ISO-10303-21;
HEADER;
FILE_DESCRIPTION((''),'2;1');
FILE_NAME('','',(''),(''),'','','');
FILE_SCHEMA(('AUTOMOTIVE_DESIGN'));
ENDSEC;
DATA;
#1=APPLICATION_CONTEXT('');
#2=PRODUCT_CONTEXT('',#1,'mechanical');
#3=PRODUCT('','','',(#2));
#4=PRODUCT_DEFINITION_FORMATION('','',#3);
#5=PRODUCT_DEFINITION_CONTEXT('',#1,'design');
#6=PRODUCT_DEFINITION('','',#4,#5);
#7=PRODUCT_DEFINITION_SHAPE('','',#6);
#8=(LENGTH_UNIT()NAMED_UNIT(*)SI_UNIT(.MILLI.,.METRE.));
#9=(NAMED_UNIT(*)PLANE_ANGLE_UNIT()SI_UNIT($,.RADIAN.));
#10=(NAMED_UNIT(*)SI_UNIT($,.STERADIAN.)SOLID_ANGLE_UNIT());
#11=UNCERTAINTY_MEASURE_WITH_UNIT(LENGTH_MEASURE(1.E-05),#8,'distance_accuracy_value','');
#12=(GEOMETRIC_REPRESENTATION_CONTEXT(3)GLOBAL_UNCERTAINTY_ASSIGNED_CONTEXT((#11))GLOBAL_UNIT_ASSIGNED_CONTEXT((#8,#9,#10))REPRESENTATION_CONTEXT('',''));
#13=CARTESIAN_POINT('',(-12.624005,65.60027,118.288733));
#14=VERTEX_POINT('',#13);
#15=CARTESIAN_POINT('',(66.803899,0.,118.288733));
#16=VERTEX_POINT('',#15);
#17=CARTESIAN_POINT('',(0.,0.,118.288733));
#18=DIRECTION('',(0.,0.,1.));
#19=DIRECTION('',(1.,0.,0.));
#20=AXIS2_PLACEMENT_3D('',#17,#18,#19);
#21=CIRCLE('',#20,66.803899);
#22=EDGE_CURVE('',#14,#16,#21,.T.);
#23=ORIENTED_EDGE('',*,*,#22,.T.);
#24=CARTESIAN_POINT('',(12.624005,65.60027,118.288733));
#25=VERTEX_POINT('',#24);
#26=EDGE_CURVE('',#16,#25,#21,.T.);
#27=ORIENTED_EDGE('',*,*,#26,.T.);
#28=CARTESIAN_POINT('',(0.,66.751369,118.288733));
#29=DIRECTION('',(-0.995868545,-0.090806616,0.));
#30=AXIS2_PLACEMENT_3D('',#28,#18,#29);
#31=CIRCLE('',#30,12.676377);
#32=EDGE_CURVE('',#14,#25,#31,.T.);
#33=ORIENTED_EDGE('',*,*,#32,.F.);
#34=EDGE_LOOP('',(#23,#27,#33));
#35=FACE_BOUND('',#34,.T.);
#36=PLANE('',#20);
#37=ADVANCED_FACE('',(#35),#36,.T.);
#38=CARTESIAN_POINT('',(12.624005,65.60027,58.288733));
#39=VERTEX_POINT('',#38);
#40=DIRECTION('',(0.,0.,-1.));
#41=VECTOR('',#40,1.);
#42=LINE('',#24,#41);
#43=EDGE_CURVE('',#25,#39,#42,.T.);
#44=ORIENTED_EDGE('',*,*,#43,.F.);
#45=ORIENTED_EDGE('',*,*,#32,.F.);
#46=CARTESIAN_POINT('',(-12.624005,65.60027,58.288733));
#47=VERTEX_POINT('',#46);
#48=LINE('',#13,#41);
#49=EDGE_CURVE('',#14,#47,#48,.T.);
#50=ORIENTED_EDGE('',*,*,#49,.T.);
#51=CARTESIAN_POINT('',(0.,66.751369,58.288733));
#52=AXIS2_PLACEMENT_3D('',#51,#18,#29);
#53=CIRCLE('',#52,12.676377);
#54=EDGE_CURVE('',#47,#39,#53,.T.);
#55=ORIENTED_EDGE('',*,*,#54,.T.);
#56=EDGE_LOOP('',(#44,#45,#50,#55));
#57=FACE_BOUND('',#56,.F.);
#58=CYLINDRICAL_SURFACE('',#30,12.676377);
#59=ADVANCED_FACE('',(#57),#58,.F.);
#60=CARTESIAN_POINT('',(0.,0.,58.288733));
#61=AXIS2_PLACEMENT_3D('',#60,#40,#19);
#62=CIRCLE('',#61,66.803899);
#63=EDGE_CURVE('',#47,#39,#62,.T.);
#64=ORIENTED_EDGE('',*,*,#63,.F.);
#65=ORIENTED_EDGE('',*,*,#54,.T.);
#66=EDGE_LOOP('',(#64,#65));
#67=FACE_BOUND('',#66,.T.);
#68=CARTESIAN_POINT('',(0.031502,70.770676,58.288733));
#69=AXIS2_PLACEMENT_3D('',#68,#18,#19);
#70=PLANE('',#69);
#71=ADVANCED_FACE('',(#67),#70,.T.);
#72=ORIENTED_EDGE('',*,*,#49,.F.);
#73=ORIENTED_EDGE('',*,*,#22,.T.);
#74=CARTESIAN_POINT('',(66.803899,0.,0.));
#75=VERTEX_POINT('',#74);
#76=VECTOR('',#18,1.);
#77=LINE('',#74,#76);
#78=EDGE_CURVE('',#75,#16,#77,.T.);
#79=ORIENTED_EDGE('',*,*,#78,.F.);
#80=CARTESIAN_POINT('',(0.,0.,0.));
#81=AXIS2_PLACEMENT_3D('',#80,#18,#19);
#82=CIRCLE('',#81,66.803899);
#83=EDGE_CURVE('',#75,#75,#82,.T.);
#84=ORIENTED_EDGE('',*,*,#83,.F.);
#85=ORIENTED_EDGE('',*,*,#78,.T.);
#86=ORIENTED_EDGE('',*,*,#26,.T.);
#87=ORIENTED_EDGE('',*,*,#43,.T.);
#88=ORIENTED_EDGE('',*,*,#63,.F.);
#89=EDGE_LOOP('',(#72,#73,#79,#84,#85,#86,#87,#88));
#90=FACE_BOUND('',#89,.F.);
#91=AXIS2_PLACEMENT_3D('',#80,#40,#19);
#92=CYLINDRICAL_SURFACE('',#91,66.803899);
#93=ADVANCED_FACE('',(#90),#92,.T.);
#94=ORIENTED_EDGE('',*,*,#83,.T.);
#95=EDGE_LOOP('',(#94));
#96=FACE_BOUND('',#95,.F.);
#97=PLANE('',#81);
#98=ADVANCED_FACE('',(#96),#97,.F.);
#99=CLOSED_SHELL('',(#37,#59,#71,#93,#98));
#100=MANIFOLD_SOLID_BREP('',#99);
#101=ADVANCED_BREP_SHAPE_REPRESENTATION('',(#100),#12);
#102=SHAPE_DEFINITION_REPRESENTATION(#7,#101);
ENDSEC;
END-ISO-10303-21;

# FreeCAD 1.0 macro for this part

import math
import FreeCAD as App
import Part
import Sketcher
from FreeCAD import Vector
Q = App.Units.Quantity

doc = App.newDocument("Part")
body = doc.addObject("PartDesign::Body", "Body")

# Sketch on XY plane
sketch1 = body.newObject("Sketcher::SketchObject", "Sketch")
sketch1.AttachmentSupport = (doc.getObject("XY_Plane"), [""])
sketch1.MapMode = "FlatFace"
sketch1.addGeometry(Part.Circle(Vector(0, 0, 0), Vector(0, 0, 1), 67), False)
sketch1.addConstraint(Sketcher.Constraint("Coincident", 0, 3, -1, 1))
sketch1.addConstraint(Sketcher.Constraint("Diameter", 0, Q("133.607798 mm")))
pad1 = body.newObject("PartDesign::Pad", "Pad")
pad1.Profile = sketch1
pad1.Length = 118.288733

# Sketch on XY plane
sketch2 = body.newObject("Sketcher::SketchObject", "Sketch001")
sketch2.AttachmentSupport = (doc.getObject("XY_Plane"), [""])
sketch2.MapMode = "FlatFace"
sketch2.AttachmentOffset = App.Placement(Vector(0, 0, 118.288733), App.Rotation())
sketch2.addGeometry(Part.ArcOfCircle(Part.Circle(Vector(-0.000193, 66.751379, 0), Vector(0, 0, 1), 12.67657), math.radians(-5.209979), math.radians(-0.000049)), False)
sketch2.addGeometry(Part.ArcOfCircle(Part.Circle(Vector(0, 66.751368, 0), Vector(0, 0, 1), 12.676377), math.radians(0.000001), math.radians(185.210008)), False)
sketch2.addGeometry(Part.ArcOfCircle(Part.Circle(Vector(0, 66.751369, 0), Vector(0, 0, 1), 12.676377), math.radians(-174.789987), math.radians(-5.210013)), False)
sketch2.addConstraint(Sketcher.Constraint("Coincident", 0, 2, 1, 1))
sketch2.addConstraint(Sketcher.Constraint("Coincident", 1, 2, 2, 1))
sketch2.addConstraint(Sketcher.Constraint("Coincident", 2, 2, 0, 1))
sketch2.addConstraint(Sketcher.Constraint("Coincident", 2, 3, 1, 3))
sketch2.addConstraint(Sketcher.Constraint("PointOnObject", 1, 3, -2))
sketch2.addConstraint(Sketcher.Constraint("Radius", 0, Q("12.67657 mm")))
sketch2.addConstraint(Sketcher.Constraint("Radius", 1, Q("12.676377 mm")))
sketch2.addConstraint(Sketcher.Constraint("DistanceY", 1, 2, 2, 3, Q("1.151099 mm")))
sketch2.addConstraint(Sketcher.Constraint("DistanceY", 1, 2, 0, 2, Q("1.151098 mm")))
sketch2.addConstraint(Sketcher.Constraint("DistanceY", 2, 2, 0, 2, Q("1.151098 mm")))
sketch2.addConstraint(Sketcher.Constraint("DistanceY", -1, 1, 0, 3, Q("66.751379 mm")))
pocket1 = body.newObject("PartDesign::Pocket", "Pocket")
pocket1.Profile = sketch2
pocket1.Length = 60

doc.recompute()
